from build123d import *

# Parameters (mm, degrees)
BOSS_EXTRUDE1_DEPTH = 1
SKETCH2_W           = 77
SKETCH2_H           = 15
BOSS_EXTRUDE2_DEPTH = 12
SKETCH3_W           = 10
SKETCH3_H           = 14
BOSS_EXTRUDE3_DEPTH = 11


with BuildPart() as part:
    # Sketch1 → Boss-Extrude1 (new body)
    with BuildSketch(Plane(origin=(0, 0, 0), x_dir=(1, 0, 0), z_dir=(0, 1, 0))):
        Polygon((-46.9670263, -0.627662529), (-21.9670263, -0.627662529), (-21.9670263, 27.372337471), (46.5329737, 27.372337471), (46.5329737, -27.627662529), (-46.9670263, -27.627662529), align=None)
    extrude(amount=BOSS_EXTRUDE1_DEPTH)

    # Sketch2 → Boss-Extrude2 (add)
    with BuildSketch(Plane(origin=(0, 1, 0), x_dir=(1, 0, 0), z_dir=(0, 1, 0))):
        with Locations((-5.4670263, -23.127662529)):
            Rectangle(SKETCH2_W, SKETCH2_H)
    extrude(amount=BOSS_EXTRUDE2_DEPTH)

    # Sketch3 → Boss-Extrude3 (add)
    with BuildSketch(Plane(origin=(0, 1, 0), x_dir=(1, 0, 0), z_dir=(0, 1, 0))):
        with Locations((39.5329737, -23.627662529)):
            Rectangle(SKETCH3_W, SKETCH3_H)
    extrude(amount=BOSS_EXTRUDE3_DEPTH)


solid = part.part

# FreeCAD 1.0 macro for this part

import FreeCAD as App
import Part
import Sketcher

V = App.Vector

doc = App.newDocument("Part")
body = doc.addObject("PartDesign::Body", "Body")

sketch1 = body.newObject("Sketcher::SketchObject", "Sketch")
sketch1.AttachmentSupport = (doc.getObject("XZ_Plane"), [""])
sketch1.MapMode = "FlatFace"
sketch1.addGeometry(Part.LineSegment(V(-21.967026, 0.627663, 0), V(-46.967026, 0.627663, 0)), False)
sketch1.addGeometry(Part.LineSegment(V(-46.967026, 0.627663, 0), V(-46.967026, 27.627663, 0)), False)
sketch1.addGeometry(Part.LineSegment(V(-46.967026, 27.627663, 0), V(46.532974, 27.627663, 0)), False)
sketch1.addGeometry(Part.LineSegment(V(46.532974, 27.627663, 0), V(46.532974, -27.372337, 0)), False)
sketch1.addGeometry(Part.LineSegment(V(46.532974, -27.372337, 0), V(-21.967026, -27.372337, 0)), False)
sketch1.addGeometry(Part.LineSegment(V(-21.967026, -27.372337, 0), V(-21.967026, 0.627663, 0)), False)
sketch1.addConstraint(Sketcher.Constraint("Coincident", 0, 2, 1, 1))
sketch1.addConstraint(Sketcher.Constraint("Coincident", 1, 2, 2, 1))
sketch1.addConstraint(Sketcher.Constraint("Coincident", 2, 2, 3, 1))
sketch1.addConstraint(Sketcher.Constraint("Coincident", 3, 2, 4, 1))
sketch1.addConstraint(Sketcher.Constraint("Coincident", 4, 2, 5, 1))
sketch1.addConstraint(Sketcher.Constraint("Coincident", 5, 2, 0, 1))
sketch1.addConstraint(Sketcher.Constraint("Horizontal", 0))
sketch1.addConstraint(Sketcher.Constraint("Vertical", 1))
sketch1.addConstraint(Sketcher.Constraint("Horizontal", 2))
sketch1.addConstraint(Sketcher.Constraint("Vertical", 3))
sketch1.addConstraint(Sketcher.Constraint("Horizontal", 4))
sketch1.addConstraint(Sketcher.Constraint("Vertical", 5))
sketch1.addConstraint(Sketcher.Constraint("DistanceX", 0, 2, 0, 1, 25.0))
sketch1.addConstraint(Sketcher.Constraint("DistanceY", 1, 1, 1, 2, 27.0))
sketch1.addConstraint(Sketcher.Constraint("DistanceY", 3, 2, 3, 1, 55.0))
sketch1.addConstraint(Sketcher.Constraint("DistanceX", 2, 1, 2, 2, 93.5))
sketch1.addConstraint(Sketcher.Constraint("DistanceX", 0, 2, -1, 1, 46.967026))
sketch1.addConstraint(Sketcher.Constraint("DistanceY", -1, 1, 0, 2, 0.627663))
pad1 = body.newObject("PartDesign::Pad", "Pad")
pad1.Profile = sketch1
pad1.Length = 1
pad1.Reversed = True

sketch2 = body.newObject("Sketcher::SketchObject", "Sketch001")
sketch2.AttachmentSupport = (doc.getObject("XZ_Plane"), [""])
sketch2.MapMode = "FlatFace"
sketch2.AttachmentOffset = App.Placement(V(0, 0, -1), App.Rotation())
sketch2.addGeometry(Part.LineSegment(V(-43.967026, 15.627663, 0), V(-43.967026, 30.627663, 0)), False)
sketch2.addGeometry(Part.LineSegment(V(-43.967026, 30.627663, 0), V(33.032974, 30.627663, 0)), False)
sketch2.addGeometry(Part.LineSegment(V(33.032974, 30.627663, 0), V(33.032974, 15.627663, 0)), False)
sketch2.addGeometry(Part.LineSegment(V(33.032974, 15.627663, 0), V(-43.967026, 15.627663, 0)), False)
sketch2.addConstraint(Sketcher.Constraint("Coincident", 0, 2, 1, 1))
sketch2.addConstraint(Sketcher.Constraint("Coincident", 1, 2, 2, 1))
sketch2.addConstraint(Sketcher.Constraint("Coincident", 2, 2, 3, 1))
sketch2.addConstraint(Sketcher.Constraint("Coincident", 3, 2, 0, 1))
sketch2.addConstraint(Sketcher.Constraint("Vertical", 0))
sketch2.addConstraint(Sketcher.Constraint("Horizontal", 1))
sketch2.addConstraint(Sketcher.Constraint("Vertical", 2))
sketch2.addConstraint(Sketcher.Constraint("Horizontal", 3))
sketch2.addConstraint(Sketcher.Constraint("DistanceX", 1, 1, 1, 2, 77.0))
sketch2.addConstraint(Sketcher.Constraint("DistanceY", 0, 1, 0, 2, 15.0))
sketch2.addConstraint(Sketcher.Constraint("DistanceX", 0, 2, -1, 1, 43.967026))
sketch2.addConstraint(Sketcher.Constraint("DistanceY", -1, 1, 0, 2, 30.627663))
pad2 = body.newObject("PartDesign::Pad", "Pad001")
pad2.Profile = sketch2
pad2.Length = 12
pad2.Reversed = True

sketch3 = body.newObject("Sketcher::SketchObject", "Sketch002")
sketch3.AttachmentSupport = (doc.getObject("XZ_Plane"), [""])
sketch3.MapMode = "FlatFace"
sketch3.AttachmentOffset = App.Placement(V(0, 0, -1), App.Rotation())
sketch3.addGeometry(Part.LineSegment(V(34.532974, 16.627663, 0), V(34.532974, 30.627663, 0)), False)
sketch3.addGeometry(Part.LineSegment(V(34.532974, 30.627663, 0), V(44.532974, 30.627663, 0)), False)
sketch3.addGeometry(Part.LineSegment(V(44.532974, 30.627663, 0), V(44.532974, 16.627663, 0)), False)
sketch3.addGeometry(Part.LineSegment(V(44.532974, 16.627663, 0), V(34.532974, 16.627663, 0)), False)
sketch3.addConstraint(Sketcher.Constraint("Coincident", 0, 2, 1, 1))
sketch3.addConstraint(Sketcher.Constraint("Coincident", 1, 2, 2, 1))
sketch3.addConstraint(Sketcher.Constraint("Coincident", 2, 2, 3, 1))
sketch3.addConstraint(Sketcher.Constraint("Coincident", 3, 2, 0, 1))
sketch3.addConstraint(Sketcher.Constraint("Vertical", 0))
sketch3.addConstraint(Sketcher.Constraint("Horizontal", 1))
sketch3.addConstraint(Sketcher.Constraint("Vertical", 2))
sketch3.addConstraint(Sketcher.Constraint("Horizontal", 3))
sketch3.addConstraint(Sketcher.Constraint("DistanceX", 1, 1, 1, 2, 10.0))
sketch3.addConstraint(Sketcher.Constraint("DistanceY", 0, 1, 0, 2, 14.0))
sketch3.addConstraint(Sketcher.Constraint("DistanceX", -1, 1, 0, 2, 34.532974))
sketch3.addConstraint(Sketcher.Constraint("DistanceY", -1, 1, 0, 2, 30.627663))
pad3 = body.newObject("PartDesign::Pad", "Pad002")
pad3.Profile = sketch3
pad3.Length = 11
pad3.Reversed = True

doc.recompute()
